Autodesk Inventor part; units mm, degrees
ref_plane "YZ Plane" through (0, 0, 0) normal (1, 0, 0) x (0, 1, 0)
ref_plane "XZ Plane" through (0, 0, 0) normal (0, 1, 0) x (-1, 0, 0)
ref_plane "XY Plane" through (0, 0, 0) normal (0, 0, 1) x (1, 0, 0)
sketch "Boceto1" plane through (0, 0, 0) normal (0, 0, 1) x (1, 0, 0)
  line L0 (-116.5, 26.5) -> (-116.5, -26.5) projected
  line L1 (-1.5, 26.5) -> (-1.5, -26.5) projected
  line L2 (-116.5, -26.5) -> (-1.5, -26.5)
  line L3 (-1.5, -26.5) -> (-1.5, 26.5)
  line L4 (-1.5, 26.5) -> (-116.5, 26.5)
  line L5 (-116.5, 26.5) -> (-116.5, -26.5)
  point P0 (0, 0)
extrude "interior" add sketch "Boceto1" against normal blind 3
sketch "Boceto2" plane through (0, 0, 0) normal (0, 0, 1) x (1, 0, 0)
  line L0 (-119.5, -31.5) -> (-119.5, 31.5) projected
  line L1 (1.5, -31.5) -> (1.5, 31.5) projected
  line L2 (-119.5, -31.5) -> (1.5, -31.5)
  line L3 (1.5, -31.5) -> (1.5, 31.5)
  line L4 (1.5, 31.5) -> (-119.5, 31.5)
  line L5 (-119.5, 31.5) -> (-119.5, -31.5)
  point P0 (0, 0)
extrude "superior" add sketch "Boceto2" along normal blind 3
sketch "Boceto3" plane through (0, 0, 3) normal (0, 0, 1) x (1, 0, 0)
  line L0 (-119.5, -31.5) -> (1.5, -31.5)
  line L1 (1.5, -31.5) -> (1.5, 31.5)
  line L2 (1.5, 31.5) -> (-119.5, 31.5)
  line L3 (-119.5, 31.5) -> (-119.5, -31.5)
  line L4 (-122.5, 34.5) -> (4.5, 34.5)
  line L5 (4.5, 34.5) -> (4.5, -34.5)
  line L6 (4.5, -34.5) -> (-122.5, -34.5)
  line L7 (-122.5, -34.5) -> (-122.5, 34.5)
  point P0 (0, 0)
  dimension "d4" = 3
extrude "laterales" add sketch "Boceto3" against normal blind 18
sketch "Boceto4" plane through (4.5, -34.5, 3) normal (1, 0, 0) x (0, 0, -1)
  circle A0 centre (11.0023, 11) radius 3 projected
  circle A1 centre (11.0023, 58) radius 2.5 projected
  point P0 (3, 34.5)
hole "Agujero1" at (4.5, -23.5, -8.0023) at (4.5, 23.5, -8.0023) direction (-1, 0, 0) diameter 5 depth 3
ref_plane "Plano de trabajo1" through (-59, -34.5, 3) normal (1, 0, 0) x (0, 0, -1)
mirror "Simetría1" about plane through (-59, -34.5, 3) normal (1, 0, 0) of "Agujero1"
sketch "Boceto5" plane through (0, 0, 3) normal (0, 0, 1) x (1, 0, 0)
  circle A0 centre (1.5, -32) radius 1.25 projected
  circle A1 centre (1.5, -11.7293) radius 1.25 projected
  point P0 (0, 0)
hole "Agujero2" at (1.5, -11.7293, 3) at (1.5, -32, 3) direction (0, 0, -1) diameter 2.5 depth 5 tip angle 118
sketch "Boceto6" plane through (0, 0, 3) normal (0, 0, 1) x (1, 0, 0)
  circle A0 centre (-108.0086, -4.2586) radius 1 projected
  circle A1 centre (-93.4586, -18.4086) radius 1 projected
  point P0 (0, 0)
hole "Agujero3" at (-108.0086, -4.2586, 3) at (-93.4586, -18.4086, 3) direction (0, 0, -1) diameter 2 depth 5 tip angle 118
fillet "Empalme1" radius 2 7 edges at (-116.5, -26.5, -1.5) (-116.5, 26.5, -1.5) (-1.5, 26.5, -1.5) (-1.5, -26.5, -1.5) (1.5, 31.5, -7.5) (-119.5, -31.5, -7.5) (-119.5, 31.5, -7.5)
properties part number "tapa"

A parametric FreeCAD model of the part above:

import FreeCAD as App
import Part
import Sketcher
from FreeCAD import Vector


def edges_at(feature, points):
    """Names of the edges that pass closest to the given points."""
    edges = feature.Shape.Edges
    near = lambda p: min(range(len(edges)), key=lambda i: edges[i].distToShape(Part.Vertex(*p))[0])
    return sorted({f"Edge{near(p) + 1}" for p in points})

doc = App.newDocument("Part")
body = doc.addObject("PartDesign::Body", "Body")

# Sketch on XY plane
sketch1 = doc.addObject("Sketcher::SketchObject", "Sketch")
body.addObject(sketch1)
sketch1.AttachmentSupport = (doc.XY_Plane, [""])
sketch1.MapMode = "FlatFace"
sketch1.addGeometry([
    Part.LineSegment(Vector(-2, 26, 0), Vector(-116, 26, 0)),
    Part.LineSegment(Vector(-116, 26, 0), Vector(-116, -26, 0)),
    Part.LineSegment(Vector(-116, -26, 0), Vector(-2, -26, 0)),
    Part.LineSegment(Vector(-2, -26, 0), Vector(-2, 26, 0)),
], False)
sketch1.addConstraint([
    Sketcher.Constraint("Coincident", 0, 2, 1, 1),
    Sketcher.Constraint("Coincident", 1, 2, 2, 1),
    Sketcher.Constraint("Coincident", 2, 2, 3, 1),
    Sketcher.Constraint("Coincident", 3, 2, 0, 1),
    Sketcher.Constraint("Horizontal", 0),
    Sketcher.Constraint("Vertical", 1),
    Sketcher.Constraint("Horizontal", 2),
    Sketcher.Constraint("Vertical", 3),
    Sketcher.Constraint("DistanceX", 0, 2, 0, 1, 115.0),
    Sketcher.Constraint("DistanceY", 1, 2, 1, 1, 53.0),
    Sketcher.Constraint("DistanceX", 0, 2, -1, 1, 116.5),
    Sketcher.Constraint("DistanceY", -1, 1, 0, 2, 26.5),
])
pad1 = doc.addObject("PartDesign::Pad", "Pad")
body.addObject(pad1)
pad1.Profile = sketch1
pad1.Length = 3
pad1.Reversed = True

# Sketch on XY plane
sketch2 = doc.addObject("Sketcher::SketchObject", "Sketch001")
body.addObject(sketch2)
sketch2.AttachmentSupport = (doc.XY_Plane, [""])
sketch2.MapMode = "FlatFace"
sketch2.addGeometry([
    Part.LineSegment(Vector(-120, 32, 0), Vector(-120, -32, 0)),
    Part.LineSegment(Vector(-120, -32, 0), Vector(2, -32, 0)),
    Part.LineSegment(Vector(2, -32, 0), Vector(2, 32, 0)),
    Part.LineSegment(Vector(2, 32, 0), Vector(-120, 32, 0)),
], False)
sketch2.addConstraint([
    Sketcher.Constraint("Coincident", 0, 2, 1, 1),
    Sketcher.Constraint("Coincident", 1, 2, 2, 1),
    Sketcher.Constraint("Coincident", 2, 2, 3, 1),
    Sketcher.Constraint("Coincident", 3, 2, 0, 1),
    Sketcher.Constraint("Vertical", 0),
    Sketcher.Constraint("Horizontal", 1),
    Sketcher.Constraint("Vertical", 2),
    Sketcher.Constraint("Horizontal", 3),
    Sketcher.Constraint("DistanceX", 1, 1, 1, 2, 121.0),
    Sketcher.Constraint("DistanceY", 0, 2, 0, 1, 63.0),
    Sketcher.Constraint("DistanceX", 0, 2, -1, 1, 119.5),
    Sketcher.Constraint("DistanceY", 0, 2, -1, 1, 31.5),
])
pad2 = doc.addObject("PartDesign::Pad", "Pad001")
body.addObject(pad2)
pad2.Profile = sketch2
pad2.Length = 3

# Sketch on XY plane
sketch3 = doc.addObject("Sketcher::SketchObject", "Sketch002")
body.addObject(sketch3)
sketch3.AttachmentSupport = (doc.XY_Plane, [""])
sketch3.MapMode = "FlatFace"
sketch3.AttachmentOffset = App.Placement(Vector(0, 0, 3), App.Rotation())
sketch3.addGeometry([
    Part.LineSegment(Vector(4, 34, 0), Vector(-122, 34, 0)),  # 0
    Part.LineSegment(Vector(-122, 34, 0), Vector(-122, -34, 0)),  # 1
    Part.LineSegment(Vector(-122, -34, 0), Vector(4, -34, 0)),  # 2
    Part.LineSegment(Vector(4, -34, 0), Vector(4, 34, 0)),  # 3
    Part.LineSegment(Vector(2, -32, 0), Vector(-120, -32, 0)),  # 4
    Part.LineSegment(Vector(-120, -32, 0), Vector(-120, 32, 0)),  # 5
    Part.LineSegment(Vector(-120, 32, 0), Vector(2, 32, 0)),  # 6
    Part.LineSegment(Vector(2, 32, 0), Vector(2, -32, 0)),  # 7
], False)
sketch3.addConstraint([
    Sketcher.Constraint("Coincident", 0, 2, 1, 1),
    Sketcher.Constraint("Coincident", 1, 2, 2, 1),
    Sketcher.Constraint("Coincident", 2, 2, 3, 1),
    Sketcher.Constraint("Coincident", 3, 2, 0, 1),
    Sketcher.Constraint("Coincident", 4, 2, 5, 1),
    Sketcher.Constraint("Coincident", 5, 2, 6, 1),
    Sketcher.Constraint("Coincident", 6, 2, 7, 1),
    Sketcher.Constraint("Coincident", 7, 2, 4, 1),
    Sketcher.Constraint("Horizontal", 0),
    Sketcher.Constraint("Vertical", 1),
    Sketcher.Constraint("Horizontal", 2),
    Sketcher.Constraint("Vertical", 3),
    Sketcher.Constraint("Horizontal", 4),
    Sketcher.Constraint("Vertical", 5),
    Sketcher.Constraint("Horizontal", 6),
    Sketcher.Constraint("Vertical", 7),
    Sketcher.Constraint("DistanceX", 1, 2, 4, 2, 3.0),
    Sketcher.Constraint("DistanceY", 1, 2, 4, 2, 3.0),
    Sketcher.Constraint("DistanceY", 5, 2, 0, 2, 3.0),
    Sketcher.Constraint("DistanceX", 6, 2, 3, 2, 3.0),
    Sketcher.Constraint("DistanceX", 0, 2, 0, 1, 127.0),
    Sketcher.Constraint("DistanceY", 1, 2, 1, 1, 69.0),
    Sketcher.Constraint("DistanceX", 0, 2, -1, 1, 122.5),
    Sketcher.Constraint("DistanceY", -1, 1, 0, 2, 34.5),
])
pad3 = doc.addObject("PartDesign::Pad", "Pad002")
body.addObject(pad3)
pad3.Profile = sketch3
pad3.Length = 18
pad3.Reversed = True

# Sketch on YZ plane
sketch4 = doc.addObject("Sketcher::SketchObject", "Sketch003")
body.addObject(sketch4)
sketch4.AttachmentSupport = (doc.YZ_Plane, [""])
sketch4.MapMode = "FlatFace"
sketch4.AttachmentOffset = App.Placement(Vector(0, 0, 4.5), App.Rotation())
sketch4.addGeometry([
    Part.Circle(Vector(-23.5, -8, 0), Vector(0, 0, 1), 2.5),
    Part.Circle(Vector(23.5, -8, 0), Vector(0, 0, 1), 2.5),
], False)
sketch4.addConstraint([
    Sketcher.Constraint("Equal", 0, 1),
    Sketcher.Constraint("Symmetric", 0, 3, 1, 3, -2),
    Sketcher.Constraint("Diameter", 0, 5.0),
    Sketcher.Constraint("DistanceX", 0, 3, 1, 3, 47.0),
    Sketcher.Constraint("DistanceY", 0, 3, -1, 1, 8.0023),
])
doc.recompute()
hole = doc.addObject("PartDesign::Hole", "Hole")
body.addObject(hole)
hole.Profile = sketch4
hole.ThreadType = "None"
hole.Diameter = 5
hole.DepthType = "Dimension"
hole.Depth = 3
hole.DrillPoint = "Flat"
doc.recompute()

datumplane = doc.addObject("PartDesign::Plane", "DatumPlane")
body.addObject(datumplane)
datumplane.AttachmentSupport = (doc.YZ_Plane, [""])
datumplane.MapMode = "FlatFace"
datumplane.AttachmentOffset = App.Placement(Vector(0, 0, -59), App.Rotation())
mirrored = doc.addObject("PartDesign::Mirrored", "Mirrored")
body.addObject(mirrored)
mirrored.Originals = [hole]
mirrored.MirrorPlane = (datumplane, [""])
body.Tip = mirrored

# Sketch on XY plane
sketch5 = doc.addObject("Sketcher::SketchObject", "Sketch004")
body.addObject(sketch5)
sketch5.AttachmentSupport = (doc.XY_Plane, [""])
sketch5.MapMode = "FlatFace"
sketch5.AttachmentOffset = App.Placement(Vector(0, 0, 3), App.Rotation())
sketch5.addGeometry([
    Part.Circle(Vector(1.5, -11.7, 0), Vector(0, 0, 1), 1.2),
    Part.Circle(Vector(1.5, -32, 0), Vector(0, 0, 1), 1.2),
], False)
sketch5.addConstraint([
    Sketcher.Constraint("Equal", 0, 1),
    Sketcher.Constraint("Vertical", 0, 3, 1, 3),
    Sketcher.Constraint("Diameter", 0, 2.5),
    Sketcher.Constraint("DistanceY", 1, 3, -1, 1, 32.0),
    Sketcher.Constraint("DistanceX", -1, 1, 0, 3, 1.5),
    Sketcher.Constraint("DistanceY", 0, 3, -1, 1, 11.7293),
])
doc.recompute()
hole2 = doc.addObject("PartDesign::Hole", "Hole001")
body.addObject(hole2)
hole2.Profile = sketch5
hole2.ThreadType = "None"
hole2.Diameter = 2.5
hole2.DepthType = "Dimension"
hole2.Depth = 5
hole2.DrillPoint = "Angled"
hole2.DrillPointAngle = 118

# Sketch on XY plane
sketch6 = doc.addObject("Sketcher::SketchObject", "Sketch005")
body.addObject(sketch6)
sketch6.AttachmentSupport = (doc.XY_Plane, [""])
sketch6.MapMode = "FlatFace"
sketch6.AttachmentOffset = App.Placement(Vector(0, 0, 3), App.Rotation())
sketch6.addGeometry([
    Part.Circle(Vector(-108, -4.3, 0), Vector(0, 0, 1), 1),
    Part.Circle(Vector(-93.5, -18.4, 0), Vector(0, 0, 1), 1),
], False)
sketch6.addConstraint([
    Sketcher.Constraint("Equal", 0, 1),
    Sketcher.Constraint("Diameter", 0, 2.0),
    Sketcher.Constraint("DistanceX", 0, 3, 1, 3, 14.55),
    Sketcher.Constraint("DistanceY", 1, 3, 0, 3, 14.15),
    Sketcher.Constraint("DistanceX", 0, 3, -1, 1, 108.0086),
    Sketcher.Constraint("DistanceY", 0, 3, -1, 1, 4.2586),
])
doc.recompute()
hole3 = doc.addObject("PartDesign::Hole", "Hole002")
body.addObject(hole3)
hole3.Profile = sketch6
hole3.ThreadType = "None"
hole3.Diameter = 2
hole3.DepthType = "Dimension"
hole3.Depth = 5
hole3.DrillPoint = "Angled"
hole3.DrillPointAngle = 118
doc.recompute()

fillet = doc.addObject("PartDesign::Fillet", "Fillet")
body.addObject(fillet)
fillet.Base = (hole3, edges_at(hole3, [
    (-116.5, -26.5, -1.5),
    (-116.5, 26.5, -1.5),
    (-1.5, 26.5, -1.5),
    (-1.5, -26.5, -1.5),
    (1.5, 31.5, -7.5),
    (-119.5, -31.5, -7.5),
    (-119.5, 31.5, -7.5),
]))
fillet.Radius = 2

doc.recompute()
